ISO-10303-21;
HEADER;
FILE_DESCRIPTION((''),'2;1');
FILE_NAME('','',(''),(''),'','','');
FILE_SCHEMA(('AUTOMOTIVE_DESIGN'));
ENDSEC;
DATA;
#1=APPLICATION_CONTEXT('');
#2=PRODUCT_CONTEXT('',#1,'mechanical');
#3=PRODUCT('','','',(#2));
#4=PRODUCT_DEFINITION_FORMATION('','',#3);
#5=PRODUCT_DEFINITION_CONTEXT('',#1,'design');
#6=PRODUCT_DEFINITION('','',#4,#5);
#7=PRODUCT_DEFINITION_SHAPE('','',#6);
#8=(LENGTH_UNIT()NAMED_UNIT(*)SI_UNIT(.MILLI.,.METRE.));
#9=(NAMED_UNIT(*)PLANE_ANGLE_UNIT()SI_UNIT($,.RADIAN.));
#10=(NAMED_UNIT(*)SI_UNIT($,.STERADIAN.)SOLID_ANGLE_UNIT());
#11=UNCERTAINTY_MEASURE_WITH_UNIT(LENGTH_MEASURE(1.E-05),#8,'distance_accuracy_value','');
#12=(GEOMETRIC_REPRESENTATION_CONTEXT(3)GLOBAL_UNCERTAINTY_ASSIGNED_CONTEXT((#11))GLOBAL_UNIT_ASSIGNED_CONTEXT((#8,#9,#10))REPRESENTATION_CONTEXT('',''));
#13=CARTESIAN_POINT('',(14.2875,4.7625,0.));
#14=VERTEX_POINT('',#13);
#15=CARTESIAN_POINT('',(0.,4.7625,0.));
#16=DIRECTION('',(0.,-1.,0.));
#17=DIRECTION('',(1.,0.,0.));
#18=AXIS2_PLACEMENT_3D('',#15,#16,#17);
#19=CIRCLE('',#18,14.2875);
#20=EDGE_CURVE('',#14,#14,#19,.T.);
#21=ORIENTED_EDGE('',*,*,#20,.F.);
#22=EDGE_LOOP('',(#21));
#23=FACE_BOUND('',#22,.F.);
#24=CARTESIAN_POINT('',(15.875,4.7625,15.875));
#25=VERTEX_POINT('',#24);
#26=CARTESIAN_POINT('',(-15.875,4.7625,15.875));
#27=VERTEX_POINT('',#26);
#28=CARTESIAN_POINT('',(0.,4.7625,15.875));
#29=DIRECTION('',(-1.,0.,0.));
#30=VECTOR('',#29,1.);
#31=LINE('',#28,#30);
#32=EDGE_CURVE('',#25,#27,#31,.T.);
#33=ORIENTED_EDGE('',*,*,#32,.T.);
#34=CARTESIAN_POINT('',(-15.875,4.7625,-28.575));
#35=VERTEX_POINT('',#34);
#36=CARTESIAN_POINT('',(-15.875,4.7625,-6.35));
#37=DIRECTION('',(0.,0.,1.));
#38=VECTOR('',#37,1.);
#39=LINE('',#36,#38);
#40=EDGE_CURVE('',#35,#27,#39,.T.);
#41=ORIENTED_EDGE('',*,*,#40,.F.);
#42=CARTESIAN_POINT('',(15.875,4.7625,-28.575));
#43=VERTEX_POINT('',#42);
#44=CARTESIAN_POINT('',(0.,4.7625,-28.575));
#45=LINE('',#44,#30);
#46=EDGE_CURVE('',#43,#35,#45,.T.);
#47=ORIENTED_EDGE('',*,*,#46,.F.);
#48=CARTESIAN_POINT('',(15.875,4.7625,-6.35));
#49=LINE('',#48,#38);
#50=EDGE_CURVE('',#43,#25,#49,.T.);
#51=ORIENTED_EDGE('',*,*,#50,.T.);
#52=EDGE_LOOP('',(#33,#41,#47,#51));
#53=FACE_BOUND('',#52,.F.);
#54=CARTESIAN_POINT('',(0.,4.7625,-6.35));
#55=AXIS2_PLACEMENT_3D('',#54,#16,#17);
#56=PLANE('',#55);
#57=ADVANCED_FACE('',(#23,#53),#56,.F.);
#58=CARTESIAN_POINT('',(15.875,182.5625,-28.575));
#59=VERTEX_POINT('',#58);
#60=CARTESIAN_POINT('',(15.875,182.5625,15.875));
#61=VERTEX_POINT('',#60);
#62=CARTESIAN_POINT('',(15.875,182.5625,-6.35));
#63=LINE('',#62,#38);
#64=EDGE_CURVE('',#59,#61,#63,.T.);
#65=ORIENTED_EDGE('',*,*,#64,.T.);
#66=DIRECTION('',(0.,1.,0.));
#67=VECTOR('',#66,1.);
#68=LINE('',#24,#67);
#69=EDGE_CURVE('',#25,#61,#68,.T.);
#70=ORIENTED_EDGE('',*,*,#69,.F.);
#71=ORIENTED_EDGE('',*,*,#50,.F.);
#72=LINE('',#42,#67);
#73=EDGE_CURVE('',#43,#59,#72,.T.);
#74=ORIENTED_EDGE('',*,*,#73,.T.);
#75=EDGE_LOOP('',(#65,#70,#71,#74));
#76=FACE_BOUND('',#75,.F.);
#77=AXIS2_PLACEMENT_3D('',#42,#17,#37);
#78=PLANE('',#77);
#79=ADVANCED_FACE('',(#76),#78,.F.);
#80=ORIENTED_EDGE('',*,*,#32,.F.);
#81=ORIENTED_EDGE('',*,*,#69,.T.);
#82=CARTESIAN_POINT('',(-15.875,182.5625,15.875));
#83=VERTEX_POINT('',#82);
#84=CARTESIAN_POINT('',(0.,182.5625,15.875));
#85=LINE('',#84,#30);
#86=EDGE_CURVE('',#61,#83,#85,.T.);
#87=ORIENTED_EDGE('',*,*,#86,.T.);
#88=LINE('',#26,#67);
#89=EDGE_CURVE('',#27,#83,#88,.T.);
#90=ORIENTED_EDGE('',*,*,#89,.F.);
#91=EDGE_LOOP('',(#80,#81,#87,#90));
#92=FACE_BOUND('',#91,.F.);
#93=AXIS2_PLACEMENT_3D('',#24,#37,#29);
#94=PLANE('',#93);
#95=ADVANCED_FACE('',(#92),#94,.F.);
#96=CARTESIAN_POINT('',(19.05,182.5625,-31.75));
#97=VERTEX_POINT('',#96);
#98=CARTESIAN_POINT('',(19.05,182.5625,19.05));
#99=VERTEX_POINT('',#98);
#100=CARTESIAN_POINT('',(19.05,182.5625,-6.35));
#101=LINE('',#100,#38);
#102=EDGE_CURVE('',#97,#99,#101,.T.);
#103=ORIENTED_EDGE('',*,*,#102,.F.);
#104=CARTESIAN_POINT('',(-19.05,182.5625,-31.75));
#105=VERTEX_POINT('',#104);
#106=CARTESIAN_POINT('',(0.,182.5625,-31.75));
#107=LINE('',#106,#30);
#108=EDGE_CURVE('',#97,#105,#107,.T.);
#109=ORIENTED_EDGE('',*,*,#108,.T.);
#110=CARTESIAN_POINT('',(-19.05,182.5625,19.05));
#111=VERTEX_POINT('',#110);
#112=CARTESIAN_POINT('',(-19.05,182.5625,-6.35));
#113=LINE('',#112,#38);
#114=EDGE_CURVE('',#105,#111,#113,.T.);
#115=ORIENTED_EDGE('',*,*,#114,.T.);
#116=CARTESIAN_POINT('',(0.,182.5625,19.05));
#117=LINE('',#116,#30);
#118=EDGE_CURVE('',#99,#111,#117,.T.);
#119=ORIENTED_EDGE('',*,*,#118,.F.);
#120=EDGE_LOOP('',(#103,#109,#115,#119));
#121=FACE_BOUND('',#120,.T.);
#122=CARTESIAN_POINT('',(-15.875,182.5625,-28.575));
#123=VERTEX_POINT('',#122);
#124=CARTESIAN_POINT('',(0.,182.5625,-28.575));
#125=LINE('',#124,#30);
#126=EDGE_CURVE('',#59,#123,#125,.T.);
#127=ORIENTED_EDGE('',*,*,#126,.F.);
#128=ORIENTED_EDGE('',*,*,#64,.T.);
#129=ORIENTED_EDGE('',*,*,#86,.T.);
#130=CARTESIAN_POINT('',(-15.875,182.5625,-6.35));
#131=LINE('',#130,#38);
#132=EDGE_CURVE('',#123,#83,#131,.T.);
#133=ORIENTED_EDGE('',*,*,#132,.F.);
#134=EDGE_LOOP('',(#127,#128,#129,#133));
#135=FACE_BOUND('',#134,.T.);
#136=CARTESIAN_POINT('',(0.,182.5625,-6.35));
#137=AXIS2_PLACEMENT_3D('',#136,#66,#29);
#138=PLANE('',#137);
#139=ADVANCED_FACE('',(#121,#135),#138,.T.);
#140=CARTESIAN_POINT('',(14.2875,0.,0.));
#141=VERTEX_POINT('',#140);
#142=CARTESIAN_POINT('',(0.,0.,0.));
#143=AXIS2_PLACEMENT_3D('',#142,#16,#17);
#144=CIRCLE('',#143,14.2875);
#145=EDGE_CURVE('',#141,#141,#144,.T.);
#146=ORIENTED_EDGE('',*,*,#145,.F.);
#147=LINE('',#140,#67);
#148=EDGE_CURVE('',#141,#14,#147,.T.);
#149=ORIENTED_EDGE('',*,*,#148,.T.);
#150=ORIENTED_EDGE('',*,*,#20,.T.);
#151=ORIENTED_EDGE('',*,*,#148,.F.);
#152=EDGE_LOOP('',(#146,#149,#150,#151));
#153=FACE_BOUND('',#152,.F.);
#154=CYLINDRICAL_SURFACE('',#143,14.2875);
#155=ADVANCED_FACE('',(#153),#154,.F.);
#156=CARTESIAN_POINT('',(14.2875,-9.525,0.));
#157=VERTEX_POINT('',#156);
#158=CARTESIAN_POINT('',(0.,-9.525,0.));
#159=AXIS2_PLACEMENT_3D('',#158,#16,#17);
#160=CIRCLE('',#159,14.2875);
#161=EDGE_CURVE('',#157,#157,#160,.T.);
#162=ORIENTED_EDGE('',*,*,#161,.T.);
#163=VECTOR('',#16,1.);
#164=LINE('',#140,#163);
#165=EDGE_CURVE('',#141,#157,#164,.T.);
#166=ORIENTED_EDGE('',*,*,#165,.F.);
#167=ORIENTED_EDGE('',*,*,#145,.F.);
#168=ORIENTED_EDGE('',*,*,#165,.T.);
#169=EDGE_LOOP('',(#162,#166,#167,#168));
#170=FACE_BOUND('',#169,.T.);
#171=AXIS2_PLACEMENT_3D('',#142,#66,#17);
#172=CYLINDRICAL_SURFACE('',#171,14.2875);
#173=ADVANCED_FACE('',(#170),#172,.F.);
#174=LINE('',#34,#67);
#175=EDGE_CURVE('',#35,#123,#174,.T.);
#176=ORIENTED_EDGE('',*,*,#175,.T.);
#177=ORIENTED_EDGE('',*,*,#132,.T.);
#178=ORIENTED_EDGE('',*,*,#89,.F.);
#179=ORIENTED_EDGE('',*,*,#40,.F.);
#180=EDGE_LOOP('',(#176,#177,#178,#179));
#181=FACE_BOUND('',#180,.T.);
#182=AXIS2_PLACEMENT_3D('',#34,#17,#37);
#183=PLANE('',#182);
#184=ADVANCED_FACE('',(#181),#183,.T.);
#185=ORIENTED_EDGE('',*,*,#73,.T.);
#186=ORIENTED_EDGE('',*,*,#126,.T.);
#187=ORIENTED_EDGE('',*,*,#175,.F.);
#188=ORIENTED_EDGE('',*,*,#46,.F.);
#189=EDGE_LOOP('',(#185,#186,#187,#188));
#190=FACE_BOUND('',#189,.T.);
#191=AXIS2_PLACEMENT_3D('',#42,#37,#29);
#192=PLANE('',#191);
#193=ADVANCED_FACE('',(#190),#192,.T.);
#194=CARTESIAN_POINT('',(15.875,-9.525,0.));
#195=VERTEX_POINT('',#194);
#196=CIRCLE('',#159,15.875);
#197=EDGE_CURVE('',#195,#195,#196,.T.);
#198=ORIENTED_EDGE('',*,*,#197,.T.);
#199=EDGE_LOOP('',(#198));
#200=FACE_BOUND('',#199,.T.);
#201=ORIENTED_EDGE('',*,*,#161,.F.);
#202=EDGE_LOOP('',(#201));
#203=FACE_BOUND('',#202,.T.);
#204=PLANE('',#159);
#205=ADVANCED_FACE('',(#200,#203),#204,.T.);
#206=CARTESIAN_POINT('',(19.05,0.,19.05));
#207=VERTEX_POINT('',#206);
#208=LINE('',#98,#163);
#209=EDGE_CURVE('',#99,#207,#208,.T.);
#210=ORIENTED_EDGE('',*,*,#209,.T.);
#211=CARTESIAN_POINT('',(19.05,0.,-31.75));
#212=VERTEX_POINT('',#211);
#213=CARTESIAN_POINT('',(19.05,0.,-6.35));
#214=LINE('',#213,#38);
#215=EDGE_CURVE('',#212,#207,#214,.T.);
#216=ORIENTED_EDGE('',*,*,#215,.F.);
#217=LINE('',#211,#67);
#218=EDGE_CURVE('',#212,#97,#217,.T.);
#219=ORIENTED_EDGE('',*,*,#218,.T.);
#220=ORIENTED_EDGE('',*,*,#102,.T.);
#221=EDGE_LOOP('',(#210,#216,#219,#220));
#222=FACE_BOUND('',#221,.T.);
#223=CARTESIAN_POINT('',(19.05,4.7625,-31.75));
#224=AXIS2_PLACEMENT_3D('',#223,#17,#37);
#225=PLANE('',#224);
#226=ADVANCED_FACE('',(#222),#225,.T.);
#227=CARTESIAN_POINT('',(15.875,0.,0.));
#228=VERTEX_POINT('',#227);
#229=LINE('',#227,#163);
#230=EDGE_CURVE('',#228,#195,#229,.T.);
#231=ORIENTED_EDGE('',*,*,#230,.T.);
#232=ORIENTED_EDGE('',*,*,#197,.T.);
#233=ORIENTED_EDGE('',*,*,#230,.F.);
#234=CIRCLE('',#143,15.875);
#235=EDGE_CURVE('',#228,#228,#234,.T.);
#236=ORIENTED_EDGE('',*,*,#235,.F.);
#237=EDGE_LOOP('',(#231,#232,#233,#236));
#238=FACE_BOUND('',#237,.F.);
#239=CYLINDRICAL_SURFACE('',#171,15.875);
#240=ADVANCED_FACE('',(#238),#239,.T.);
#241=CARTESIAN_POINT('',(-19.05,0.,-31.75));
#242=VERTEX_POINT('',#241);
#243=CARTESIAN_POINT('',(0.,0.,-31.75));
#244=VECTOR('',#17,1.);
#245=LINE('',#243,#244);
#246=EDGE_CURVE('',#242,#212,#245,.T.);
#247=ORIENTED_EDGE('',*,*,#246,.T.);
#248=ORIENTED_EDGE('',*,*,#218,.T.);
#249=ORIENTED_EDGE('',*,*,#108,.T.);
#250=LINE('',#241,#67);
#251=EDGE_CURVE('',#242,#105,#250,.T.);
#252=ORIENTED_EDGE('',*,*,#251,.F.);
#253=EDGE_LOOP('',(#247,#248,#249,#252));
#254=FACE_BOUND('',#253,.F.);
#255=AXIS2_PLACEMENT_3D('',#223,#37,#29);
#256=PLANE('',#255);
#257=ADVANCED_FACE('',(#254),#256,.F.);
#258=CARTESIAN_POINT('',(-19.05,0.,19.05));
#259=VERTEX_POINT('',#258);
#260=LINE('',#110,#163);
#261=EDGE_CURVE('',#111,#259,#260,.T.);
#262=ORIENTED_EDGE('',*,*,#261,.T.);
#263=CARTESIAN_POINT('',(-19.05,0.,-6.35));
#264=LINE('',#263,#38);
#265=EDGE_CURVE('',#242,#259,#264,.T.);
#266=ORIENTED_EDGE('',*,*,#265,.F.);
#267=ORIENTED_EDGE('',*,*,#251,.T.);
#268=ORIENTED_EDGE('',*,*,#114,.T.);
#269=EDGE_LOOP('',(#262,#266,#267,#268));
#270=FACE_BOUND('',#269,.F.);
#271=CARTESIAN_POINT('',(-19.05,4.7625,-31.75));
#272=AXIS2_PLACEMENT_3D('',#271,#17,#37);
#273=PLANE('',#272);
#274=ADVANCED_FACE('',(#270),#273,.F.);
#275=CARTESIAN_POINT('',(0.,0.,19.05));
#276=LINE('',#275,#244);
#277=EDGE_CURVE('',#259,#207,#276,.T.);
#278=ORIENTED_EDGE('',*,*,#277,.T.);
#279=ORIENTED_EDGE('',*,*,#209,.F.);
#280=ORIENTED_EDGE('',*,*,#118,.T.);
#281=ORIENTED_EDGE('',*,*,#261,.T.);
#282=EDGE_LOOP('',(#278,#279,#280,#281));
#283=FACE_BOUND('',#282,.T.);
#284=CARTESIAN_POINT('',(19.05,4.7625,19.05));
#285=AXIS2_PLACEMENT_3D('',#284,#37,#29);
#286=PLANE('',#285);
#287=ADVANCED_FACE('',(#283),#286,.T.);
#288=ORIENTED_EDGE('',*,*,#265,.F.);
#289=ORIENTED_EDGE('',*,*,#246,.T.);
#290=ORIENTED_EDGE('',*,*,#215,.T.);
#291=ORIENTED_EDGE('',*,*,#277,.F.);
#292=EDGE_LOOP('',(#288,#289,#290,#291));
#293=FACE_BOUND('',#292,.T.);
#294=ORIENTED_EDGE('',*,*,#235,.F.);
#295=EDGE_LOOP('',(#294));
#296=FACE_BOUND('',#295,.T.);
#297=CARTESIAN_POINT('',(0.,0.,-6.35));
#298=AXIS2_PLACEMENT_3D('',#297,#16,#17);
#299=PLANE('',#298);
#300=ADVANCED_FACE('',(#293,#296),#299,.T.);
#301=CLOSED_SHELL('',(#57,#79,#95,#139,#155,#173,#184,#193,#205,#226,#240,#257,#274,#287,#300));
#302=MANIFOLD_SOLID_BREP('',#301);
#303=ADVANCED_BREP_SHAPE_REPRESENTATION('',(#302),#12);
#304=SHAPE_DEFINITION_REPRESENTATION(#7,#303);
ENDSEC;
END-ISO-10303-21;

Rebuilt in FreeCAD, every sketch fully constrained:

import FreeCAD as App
import Part
import Sketcher
Q = App.Units.Quantity


def add_polygon(sketch, points):
    """Adds a closed chain of lines whose ends are joined by coincident constraints."""
    first, n = sketch.GeometryCount, len(points)
    for a, b in zip(points, points[1:] + points[:1]):
        sketch.addGeometry(Part.LineSegment(App.Vector(*a, 0), App.Vector(*b, 0)), False)
    for i in range(n):
        sketch.addConstraint(Sketcher.Constraint("Coincident", first + i, 2, first + (i + 1) % n, 1))

doc = App.newDocument("Part")
body = doc.addObject("PartDesign::Body", "Body")

# Sketch on XZ plane
sketch1 = body.newObject("Sketcher::SketchObject", "Sketch")
sketch1.AttachmentSupport = (doc.getObject("XZ_Plane"), [""])
sketch1.MapMode = "FlatFace"
sketch1.addGeometry([
    Part.Circle(App.Vector(0, 0, 0), App.Vector(0, 0, 1), 15.875),
    Part.Circle(App.Vector(0, 0, 0), App.Vector(0, 0, 1), 14.2875),
], False)
sketch1.addConstraint([
    Sketcher.Constraint("Coincident", 0, 3, -1, 1),
    Sketcher.Constraint("Coincident", 1, 3, -1, 1),
    Sketcher.Constraint("Diameter", 0, Q("1.25 in")),
    Sketcher.Constraint("Diameter", 1, Q("1.125 in")),
])
pad1 = body.newObject("PartDesign::Pad", "Pad")
pad1.Profile = sketch1
pad1.Length = Q("0.375 in")

# Sketch on XZ plane
sketch2 = body.newObject("Sketcher::SketchObject", "Sketch001")
sketch2.AttachmentSupport = (doc.getObject("XZ_Plane"), [""])
sketch2.MapMode = "FlatFace"
add_polygon(sketch2, [(-19.05, 19.05), (-19.05, -31.75), (19.05, -31.75), (19.05, 19.05)])  # lines 0-3
sketch2.addGeometry(Part.Circle(App.Vector(0, 0, 0), App.Vector(0, 0, 1), 14.2875), False)  # 4
sketch2.addConstraint([
    Sketcher.Constraint("Vertical", 0),
    Sketcher.Constraint("Horizontal", 1),
    Sketcher.Constraint("Vertical", 2),
    Sketcher.Constraint("Horizontal", 3),
    Sketcher.Constraint("Coincident", 4, 3, -1, 1),
    Sketcher.Constraint("DistanceY", 0, 2, 0, 1, Q("2 in")),
    Sketcher.Constraint("Diameter", 4, Q("1.125 in")),
    Sketcher.Constraint("DistanceX", 1, 1, 1, 2, Q("1.5 in")),
    Sketcher.Constraint("DistanceX", 0, 2, -1, 1, Q("0.75 in")),
    Sketcher.Constraint("DistanceY", 0, 2, -1, 1, Q("1.25 in")),
])
pad2 = body.newObject("PartDesign::Pad", "Pad001")
pad2.Profile = sketch2
pad2.Length = Q("0.1875 in")
pad2.Reversed = True

# Sketch on XZ plane
sketch3 = body.newObject("Sketcher::SketchObject", "Sketch002")
sketch3.AttachmentSupport = (doc.getObject("XZ_Plane"), [""])
sketch3.MapMode = "FlatFace"
sketch3.AttachmentOffset = App.Placement(App.Vector(0, 0, -0.1875 * 25.4), App.Rotation())
add_polygon(sketch3, [(19.05, 19.05), (19.05, -31.75), (-19.05, -31.75), (-19.05, 19.05)])  # lines 0-3
add_polygon(sketch3, [(-15.875, -28.575), (15.875, -28.575), (15.875, 15.875), (-15.875, 15.875)])  # lines 4-7
sketch3.addConstraint([
    Sketcher.Constraint("Vertical", 0),
    Sketcher.Constraint("Horizontal", 1),
    Sketcher.Constraint("Vertical", 2),
    Sketcher.Constraint("Horizontal", 3),
    Sketcher.Constraint("Horizontal", 4),
    Sketcher.Constraint("Vertical", 5),
    Sketcher.Constraint("Horizontal", 6),
    Sketcher.Constraint("Vertical", 7),
    Sketcher.Constraint("DistanceY", 0, 2, 0, 1, Q("2 in")),
    Sketcher.Constraint("DistanceX", 1, 2, 1, 1, Q("1.5 in")),
    Sketcher.Constraint("DistanceX", 4, 1, 4, 2, Q("1.25 in")),
    Sketcher.Constraint("DistanceY", 5, 1, 5, 2, Q("1.75 in")),
    Sketcher.Constraint("DistanceX", -1, 1, 0, 2, Q("0.75 in")),
    Sketcher.Constraint("DistanceY", 0, 2, -1, 1, Q("1.25 in")),
    Sketcher.Constraint("DistanceX", -1, 1, 4, 2, Q("0.625 in")),
    Sketcher.Constraint("DistanceY", 4, 2, -1, 1, Q("1.125 in")),
])
pad3 = body.newObject("PartDesign::Pad", "Pad002")
pad3.Profile = sketch3
pad3.Length = Q("7 in")
pad3.Reversed = True

doc.recompute()
